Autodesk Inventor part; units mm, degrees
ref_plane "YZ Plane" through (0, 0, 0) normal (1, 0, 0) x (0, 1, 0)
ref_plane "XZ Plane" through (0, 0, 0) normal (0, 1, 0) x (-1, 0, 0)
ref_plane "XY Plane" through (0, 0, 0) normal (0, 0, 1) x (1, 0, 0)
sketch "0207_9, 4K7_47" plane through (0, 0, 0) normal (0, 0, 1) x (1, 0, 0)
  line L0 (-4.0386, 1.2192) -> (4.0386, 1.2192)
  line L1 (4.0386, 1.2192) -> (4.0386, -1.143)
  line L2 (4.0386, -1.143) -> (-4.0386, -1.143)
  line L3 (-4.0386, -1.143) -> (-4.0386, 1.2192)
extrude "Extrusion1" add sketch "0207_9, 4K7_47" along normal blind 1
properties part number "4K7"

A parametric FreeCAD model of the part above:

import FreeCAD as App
import Part
import Sketcher
from FreeCAD import Vector
Q = App.Units.Quantity


def add_polygon(sketch, points):
    """Adds a closed chain of lines whose ends are joined by coincident constraints."""
    first, n = sketch.GeometryCount, len(points)
    for a, b in zip(points, points[1:] + points[:1]):
        sketch.addGeometry(Part.LineSegment(App.Vector(*a, 0), App.Vector(*b, 0)), False)
    for i in range(n):
        sketch.addConstraint(Sketcher.Constraint("Coincident", first + i, 2, first + (i + 1) % n, 1))

doc = App.newDocument("Part")
body = doc.addObject("PartDesign::Body", "Body")

# Sketch on XY plane
sketch1 = doc.addObject("Sketcher::SketchObject", "Sketch")
body.addObject(sketch1)
sketch1.AttachmentSupport = (doc.XY_Plane, [""])
sketch1.MapMode = "FlatFace"
add_polygon(sketch1, [(4.0386, 1.2192), (-4.0386, 1.2192), (-4.0386, -1.143), (4.0386, -1.143)])  # lines 0-3
sketch1.addConstraint([
    Sketcher.Constraint("Horizontal", 0),
    Sketcher.Constraint("Vertical", 1),
    Sketcher.Constraint("Horizontal", 2),
    Sketcher.Constraint("Vertical", 3),
    Sketcher.Constraint("DistanceX", 0, 2, 0, 1, Q("0.318 in")),
    Sketcher.Constraint("DistanceY", 1, 2, 1, 1, Q("0.093 in")),
    Sketcher.Constraint("DistanceX", 0, 2, -1, 1, Q("0.159 in")),
    Sketcher.Constraint("DistanceY", -1, 1, 0, 2, Q("0.048 in")),
])
pad1 = doc.addObject("PartDesign::Pad", "Pad")
body.addObject(pad1)
pad1.Profile = sketch1
pad1.Length = 1

doc.recompute()
